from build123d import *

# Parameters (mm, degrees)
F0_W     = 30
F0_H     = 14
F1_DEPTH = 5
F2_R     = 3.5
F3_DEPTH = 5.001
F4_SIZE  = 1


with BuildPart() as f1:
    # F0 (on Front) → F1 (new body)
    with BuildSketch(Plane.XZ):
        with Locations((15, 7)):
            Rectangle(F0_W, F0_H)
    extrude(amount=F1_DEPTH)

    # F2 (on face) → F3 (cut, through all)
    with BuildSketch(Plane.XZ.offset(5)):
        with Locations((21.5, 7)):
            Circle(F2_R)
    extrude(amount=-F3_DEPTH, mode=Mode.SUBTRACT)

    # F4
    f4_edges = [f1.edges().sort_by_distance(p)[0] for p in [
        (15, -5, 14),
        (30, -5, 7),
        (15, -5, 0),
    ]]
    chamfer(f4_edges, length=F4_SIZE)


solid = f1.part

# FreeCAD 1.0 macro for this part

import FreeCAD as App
import Part
import Sketcher
from FreeCAD import Vector


def edges_at(feature, points):
    """Names of the edges that pass closest to the given points."""
    edges = feature.Shape.Edges
    near = lambda p: min(range(len(edges)), key=lambda i: edges[i].distToShape(Part.Vertex(*p))[0])
    return sorted({f"Edge{near(p) + 1}" for p in points})

doc = App.newDocument("Part")
body = doc.addObject("PartDesign::Body", "Body")

# Sketch on XZ plane
sketch1 = body.newObject("Sketcher::SketchObject", "Sketch")
sketch1.AttachmentSupport = (doc.getObject("XZ_Plane"), [""])
sketch1.MapMode = "FlatFace"
sketch1.addGeometry(Part.LineSegment(Vector(0, 14, 0), Vector(0, 0, 0)), False)
sketch1.addGeometry(Part.LineSegment(Vector(0, 0, 0), Vector(30, 0, 0)), False)
sketch1.addGeometry(Part.LineSegment(Vector(30, 0, 0), Vector(30, 14, 0)), False)
sketch1.addGeometry(Part.LineSegment(Vector(30, 14, 0), Vector(0, 14, 0)), False)
sketch1.addConstraint(Sketcher.Constraint("Coincident", 0, 2, 1, 1))
sketch1.addConstraint(Sketcher.Constraint("Coincident", 1, 2, 2, 1))
sketch1.addConstraint(Sketcher.Constraint("Coincident", 2, 2, 3, 1))
sketch1.addConstraint(Sketcher.Constraint("Coincident", 3, 2, 0, 1))
sketch1.addConstraint(Sketcher.Constraint("Vertical", 0))
sketch1.addConstraint(Sketcher.Constraint("Horizontal", 1))
sketch1.addConstraint(Sketcher.Constraint("Vertical", 2))
sketch1.addConstraint(Sketcher.Constraint("Horizontal", 3))
sketch1.addConstraint(Sketcher.Constraint("Coincident", 0, 2, -1, 1))
sketch1.addConstraint(Sketcher.Constraint("DistanceX", 1, 1, 1, 2, 30.0))
sketch1.addConstraint(Sketcher.Constraint("DistanceY", 0, 2, 0, 1, 14.0))
pad1 = body.newObject("PartDesign::Pad", "Pad")
pad1.Profile = sketch1
pad1.Length = 5

# Sketch on XZ plane
sketch2 = body.newObject("Sketcher::SketchObject", "Sketch001")
sketch2.AttachmentSupport = (doc.getObject("XZ_Plane"), [""])
sketch2.MapMode = "FlatFace"
sketch2.AttachmentOffset = App.Placement(Vector(0, 0, 5), App.Rotation())
sketch2.addGeometry(Part.Circle(Vector(21.5, 7, 0), Vector(0, 0, 1), 3.5), False)
sketch2.addConstraint(Sketcher.Constraint("Diameter", 0, 7.0))
sketch2.addConstraint(Sketcher.Constraint("DistanceY", -1, 1, 0, 3, 7.0))
sketch2.addConstraint(Sketcher.Constraint("DistanceX", -1, 1, 0, 3, 21.5))
pocket1 = body.newObject("PartDesign::Pocket", "Pocket")
pocket1.Profile = sketch2
pocket1.Type = "ThroughAll"
doc.recompute()

chamfer = body.newObject("PartDesign::Chamfer", "Chamfer")
chamfer.Base = (pocket1, edges_at(pocket1, [(15, -5, 14), (30, -5, 7), (15, -5, 0)]))
chamfer.Size = 1

doc.recompute()
